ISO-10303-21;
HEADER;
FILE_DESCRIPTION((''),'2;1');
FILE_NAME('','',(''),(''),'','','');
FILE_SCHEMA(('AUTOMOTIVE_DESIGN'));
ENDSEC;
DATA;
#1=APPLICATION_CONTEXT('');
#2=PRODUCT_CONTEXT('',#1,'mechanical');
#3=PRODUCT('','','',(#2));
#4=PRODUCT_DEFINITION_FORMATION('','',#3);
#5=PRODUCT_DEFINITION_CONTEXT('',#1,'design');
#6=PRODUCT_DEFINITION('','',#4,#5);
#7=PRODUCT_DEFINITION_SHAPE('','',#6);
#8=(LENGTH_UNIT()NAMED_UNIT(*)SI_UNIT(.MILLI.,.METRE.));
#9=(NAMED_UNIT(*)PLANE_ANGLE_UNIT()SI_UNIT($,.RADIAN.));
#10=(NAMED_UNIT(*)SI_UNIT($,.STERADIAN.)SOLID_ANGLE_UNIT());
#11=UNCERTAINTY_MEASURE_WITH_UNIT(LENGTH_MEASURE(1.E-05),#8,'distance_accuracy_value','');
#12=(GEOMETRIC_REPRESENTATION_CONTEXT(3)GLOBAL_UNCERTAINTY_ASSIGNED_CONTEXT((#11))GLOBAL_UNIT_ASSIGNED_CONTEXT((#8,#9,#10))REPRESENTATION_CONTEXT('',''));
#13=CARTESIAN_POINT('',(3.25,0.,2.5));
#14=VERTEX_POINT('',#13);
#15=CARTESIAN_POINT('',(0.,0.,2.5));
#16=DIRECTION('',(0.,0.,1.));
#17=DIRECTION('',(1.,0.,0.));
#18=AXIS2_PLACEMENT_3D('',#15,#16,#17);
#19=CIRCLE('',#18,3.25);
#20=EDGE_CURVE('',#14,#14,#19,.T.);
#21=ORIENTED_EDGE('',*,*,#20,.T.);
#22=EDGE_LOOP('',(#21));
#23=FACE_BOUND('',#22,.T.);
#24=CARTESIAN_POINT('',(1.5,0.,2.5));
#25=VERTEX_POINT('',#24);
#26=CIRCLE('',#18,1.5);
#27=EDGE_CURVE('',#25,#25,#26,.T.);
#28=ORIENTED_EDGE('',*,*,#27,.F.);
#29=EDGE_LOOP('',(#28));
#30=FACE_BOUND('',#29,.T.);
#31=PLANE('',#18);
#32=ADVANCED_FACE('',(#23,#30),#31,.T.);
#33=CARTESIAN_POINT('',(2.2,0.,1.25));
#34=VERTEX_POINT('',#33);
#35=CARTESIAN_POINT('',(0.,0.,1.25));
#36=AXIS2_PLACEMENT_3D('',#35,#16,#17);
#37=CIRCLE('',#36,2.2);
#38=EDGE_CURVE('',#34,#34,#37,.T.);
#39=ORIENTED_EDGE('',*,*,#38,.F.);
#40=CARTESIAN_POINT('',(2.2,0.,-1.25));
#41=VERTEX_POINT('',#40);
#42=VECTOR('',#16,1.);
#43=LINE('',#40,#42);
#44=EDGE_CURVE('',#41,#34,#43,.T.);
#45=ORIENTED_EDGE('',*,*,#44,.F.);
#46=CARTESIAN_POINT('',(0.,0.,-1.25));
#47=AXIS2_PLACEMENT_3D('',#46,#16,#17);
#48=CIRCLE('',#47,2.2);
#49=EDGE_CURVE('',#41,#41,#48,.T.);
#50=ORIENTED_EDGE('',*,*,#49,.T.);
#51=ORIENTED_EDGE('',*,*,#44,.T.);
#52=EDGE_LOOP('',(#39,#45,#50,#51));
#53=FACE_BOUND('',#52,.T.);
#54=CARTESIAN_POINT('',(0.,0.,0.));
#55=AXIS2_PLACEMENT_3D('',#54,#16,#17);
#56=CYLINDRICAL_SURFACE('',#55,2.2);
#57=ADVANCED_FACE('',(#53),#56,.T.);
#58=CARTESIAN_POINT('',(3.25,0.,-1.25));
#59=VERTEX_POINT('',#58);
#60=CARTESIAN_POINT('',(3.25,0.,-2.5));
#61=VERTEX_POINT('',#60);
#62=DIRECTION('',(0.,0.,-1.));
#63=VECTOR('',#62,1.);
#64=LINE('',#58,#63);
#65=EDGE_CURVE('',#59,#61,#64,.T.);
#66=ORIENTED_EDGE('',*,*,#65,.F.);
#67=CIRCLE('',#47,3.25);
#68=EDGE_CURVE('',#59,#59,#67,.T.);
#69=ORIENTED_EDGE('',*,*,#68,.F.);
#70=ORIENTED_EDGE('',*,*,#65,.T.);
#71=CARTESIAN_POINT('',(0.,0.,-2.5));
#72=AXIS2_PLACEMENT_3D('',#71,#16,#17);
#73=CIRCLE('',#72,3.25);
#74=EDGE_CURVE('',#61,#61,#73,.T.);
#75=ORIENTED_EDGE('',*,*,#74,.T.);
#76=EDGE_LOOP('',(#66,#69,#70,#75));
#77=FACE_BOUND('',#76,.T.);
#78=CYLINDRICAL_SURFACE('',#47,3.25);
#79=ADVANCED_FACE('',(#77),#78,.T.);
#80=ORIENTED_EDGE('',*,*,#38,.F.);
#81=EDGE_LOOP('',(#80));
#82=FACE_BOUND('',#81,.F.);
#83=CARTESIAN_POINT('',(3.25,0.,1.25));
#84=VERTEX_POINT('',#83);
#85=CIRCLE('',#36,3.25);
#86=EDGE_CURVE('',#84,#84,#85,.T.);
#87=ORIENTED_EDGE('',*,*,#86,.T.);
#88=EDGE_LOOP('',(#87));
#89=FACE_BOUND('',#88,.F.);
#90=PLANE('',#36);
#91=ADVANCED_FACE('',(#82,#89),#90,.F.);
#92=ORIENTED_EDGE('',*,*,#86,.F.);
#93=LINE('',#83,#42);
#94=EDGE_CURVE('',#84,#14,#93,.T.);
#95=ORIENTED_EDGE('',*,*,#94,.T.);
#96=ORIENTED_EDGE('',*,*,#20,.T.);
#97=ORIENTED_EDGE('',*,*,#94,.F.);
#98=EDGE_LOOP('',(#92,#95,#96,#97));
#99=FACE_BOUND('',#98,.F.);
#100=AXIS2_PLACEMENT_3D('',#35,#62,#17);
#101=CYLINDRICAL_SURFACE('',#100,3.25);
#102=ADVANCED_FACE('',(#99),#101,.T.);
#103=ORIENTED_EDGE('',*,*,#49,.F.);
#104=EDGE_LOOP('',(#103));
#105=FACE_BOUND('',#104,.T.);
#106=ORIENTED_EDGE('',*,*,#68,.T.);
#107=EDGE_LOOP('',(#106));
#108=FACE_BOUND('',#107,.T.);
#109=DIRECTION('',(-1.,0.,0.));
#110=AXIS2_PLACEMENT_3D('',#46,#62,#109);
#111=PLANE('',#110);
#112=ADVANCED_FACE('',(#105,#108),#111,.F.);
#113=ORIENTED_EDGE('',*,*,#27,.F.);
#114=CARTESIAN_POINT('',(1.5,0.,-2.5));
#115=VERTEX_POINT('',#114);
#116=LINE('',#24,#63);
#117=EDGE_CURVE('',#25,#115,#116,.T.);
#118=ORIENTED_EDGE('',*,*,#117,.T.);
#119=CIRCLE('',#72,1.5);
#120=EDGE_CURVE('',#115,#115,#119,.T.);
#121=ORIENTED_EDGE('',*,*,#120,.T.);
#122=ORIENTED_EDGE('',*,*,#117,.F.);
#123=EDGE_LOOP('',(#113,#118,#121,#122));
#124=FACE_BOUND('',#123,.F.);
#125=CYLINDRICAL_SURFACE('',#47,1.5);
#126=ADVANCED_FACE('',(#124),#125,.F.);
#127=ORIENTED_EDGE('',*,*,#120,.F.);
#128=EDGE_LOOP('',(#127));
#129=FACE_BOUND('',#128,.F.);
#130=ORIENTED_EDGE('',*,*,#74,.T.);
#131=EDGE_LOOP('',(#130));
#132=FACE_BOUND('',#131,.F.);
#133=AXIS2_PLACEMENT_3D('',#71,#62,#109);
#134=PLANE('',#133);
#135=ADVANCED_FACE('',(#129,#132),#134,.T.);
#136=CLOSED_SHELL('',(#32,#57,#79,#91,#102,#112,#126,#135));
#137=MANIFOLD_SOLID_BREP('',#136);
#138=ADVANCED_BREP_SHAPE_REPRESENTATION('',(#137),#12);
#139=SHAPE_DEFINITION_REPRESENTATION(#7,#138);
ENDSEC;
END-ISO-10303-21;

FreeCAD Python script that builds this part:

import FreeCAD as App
import Part
import Sketcher
Q = App.Units.Quantity

doc = App.newDocument("Part")
body = doc.addObject("PartDesign::Body", "Body")

# Sketch on XY plane
sketch1 = body.newObject("Sketcher::SketchObject", "Sketch")
sketch1.AttachmentSupport = (doc.getObject("XY_Plane"), [""])
sketch1.MapMode = "FlatFace"
sketch1.addGeometry(Part.Circle(App.Vector(0, 0, 0), App.Vector(0, 0, 1), 2.2), False)
sketch1.addGeometry(Part.Circle(App.Vector(0, 0, 0), App.Vector(0, 0, 1), 1.5), False)
sketch1.addConstraint(Sketcher.Constraint("Coincident", 0, 3, -1, 1))
sketch1.addConstraint(Sketcher.Constraint("Coincident", 1, 3, -1, 1))
sketch1.addConstraint(Sketcher.Constraint("Diameter", 1, Q("3 mm")))
sketch1.addConstraint(Sketcher.Constraint("Diameter", 0, Q("4.4 mm")))
pad1 = body.newObject("PartDesign::Pad", "Pad")
pad1.Profile = sketch1
pad1.Length = 1.25

# Sketch on XY plane
sketch2 = body.newObject("Sketcher::SketchObject", "Sketch001")
sketch2.AttachmentSupport = (doc.getObject("XY_Plane"), [""])
sketch2.MapMode = "FlatFace"
sketch2.AttachmentOffset = App.Placement(App.Vector(0, 0, 1.25), App.Rotation())
sketch2.addGeometry(Part.Circle(App.Vector(0, 0, 0), App.Vector(0, 0, 1), 3.2), False)
sketch2.addGeometry(Part.Circle(App.Vector(0, 0, 0), App.Vector(0, 0, 1), 1.5), False)
sketch2.addConstraint(Sketcher.Constraint("Coincident", 0, 3, -1, 1))
sketch2.addConstraint(Sketcher.Constraint("Coincident", 1, 3, -1, 1))
sketch2.addConstraint(Sketcher.Constraint("Diameter", 1, Q("3 mm")))
sketch2.addConstraint(Sketcher.Constraint("Diameter", 0, Q("6.5 mm")))
pad2 = body.newObject("PartDesign::Pad", "Pad001")
pad2.Profile = sketch2
pad2.Length = 1.25
body2 = doc.addObject("PartDesign::Body", "Body001")
doc.recompute()

body2.BaseFeature = body
doc.recompute()

mirroring = doc.addObject("Part::Mirroring", "Mirroring")
mirroring.Source = body
mirroring.Base = App.Vector(0, 0, 0)
mirroring.Normal = App.Vector(0, 0, 1)
body3 = doc.addObject("PartDesign::Body", "Body002")
body3.BaseFeature = mirroring
boolean = body2.newObject("PartDesign::Boolean", "Boolean")
boolean.Type = "Fuse"
boolean.addObjects([body3])
doc.recompute()
mirroring.Visibility = False

doc.recompute()
